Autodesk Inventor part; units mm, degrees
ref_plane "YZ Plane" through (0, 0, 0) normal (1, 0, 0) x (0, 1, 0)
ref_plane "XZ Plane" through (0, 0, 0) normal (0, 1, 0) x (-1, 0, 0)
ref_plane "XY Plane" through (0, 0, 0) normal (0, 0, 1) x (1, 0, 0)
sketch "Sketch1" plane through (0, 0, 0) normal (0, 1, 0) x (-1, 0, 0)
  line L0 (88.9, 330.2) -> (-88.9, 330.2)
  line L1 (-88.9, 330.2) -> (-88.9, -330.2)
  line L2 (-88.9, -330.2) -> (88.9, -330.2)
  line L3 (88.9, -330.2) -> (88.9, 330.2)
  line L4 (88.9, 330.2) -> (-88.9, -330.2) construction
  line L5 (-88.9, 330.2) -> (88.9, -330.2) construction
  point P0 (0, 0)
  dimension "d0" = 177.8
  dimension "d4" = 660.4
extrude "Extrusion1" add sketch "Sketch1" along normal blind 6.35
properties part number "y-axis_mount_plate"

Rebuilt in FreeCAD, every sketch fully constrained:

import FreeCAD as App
import Part
import Sketcher
from FreeCAD import Vector
Q = App.Units.Quantity

doc = App.newDocument("Part")
body = doc.addObject("PartDesign::Body", "Body")

sketch1 = body.newObject("Sketcher::SketchObject", "Sketch")
sketch1.AttachmentSupport = (doc.getObject("XZ_Plane"), [""])
sketch1.MapMode = "FlatFace"
sketch1.addGeometry([
    Part.LineSegment(Vector(-89, -330, 0), Vector(-89, 330, 0)),
    Part.LineSegment(Vector(-89, 330, 0), Vector(89, 330, 0)),
    Part.LineSegment(Vector(89, 330, 0), Vector(89, -330, 0)),
    Part.LineSegment(Vector(89, -330, 0), Vector(-89, -330, 0)),
], False)
sketch1.addConstraint([
    Sketcher.Constraint("Coincident", 0, 2, 1, 1),
    Sketcher.Constraint("Coincident", 1, 2, 2, 1),
    Sketcher.Constraint("Coincident", 2, 2, 3, 1),
    Sketcher.Constraint("Coincident", 3, 2, 0, 1),
    Sketcher.Constraint("Vertical", 0),
    Sketcher.Constraint("Horizontal", 1),
    Sketcher.Constraint("Vertical", 2),
    Sketcher.Constraint("Horizontal", 3),
    Sketcher.Constraint("Symmetric", 0, 2, 2, 2, -1, 1),
    Sketcher.Constraint("DistanceX", 1, 1, 1, 2, Q("7 in")),
    Sketcher.Constraint("DistanceY", 0, 1, 0, 2, Q("26 in")),
])
pad1 = body.newObject("PartDesign::Pad", "Pad")
pad1.Profile = sketch1
pad1.Length = Q("0.25 in")
pad1.Reversed = True

doc.recompute()
